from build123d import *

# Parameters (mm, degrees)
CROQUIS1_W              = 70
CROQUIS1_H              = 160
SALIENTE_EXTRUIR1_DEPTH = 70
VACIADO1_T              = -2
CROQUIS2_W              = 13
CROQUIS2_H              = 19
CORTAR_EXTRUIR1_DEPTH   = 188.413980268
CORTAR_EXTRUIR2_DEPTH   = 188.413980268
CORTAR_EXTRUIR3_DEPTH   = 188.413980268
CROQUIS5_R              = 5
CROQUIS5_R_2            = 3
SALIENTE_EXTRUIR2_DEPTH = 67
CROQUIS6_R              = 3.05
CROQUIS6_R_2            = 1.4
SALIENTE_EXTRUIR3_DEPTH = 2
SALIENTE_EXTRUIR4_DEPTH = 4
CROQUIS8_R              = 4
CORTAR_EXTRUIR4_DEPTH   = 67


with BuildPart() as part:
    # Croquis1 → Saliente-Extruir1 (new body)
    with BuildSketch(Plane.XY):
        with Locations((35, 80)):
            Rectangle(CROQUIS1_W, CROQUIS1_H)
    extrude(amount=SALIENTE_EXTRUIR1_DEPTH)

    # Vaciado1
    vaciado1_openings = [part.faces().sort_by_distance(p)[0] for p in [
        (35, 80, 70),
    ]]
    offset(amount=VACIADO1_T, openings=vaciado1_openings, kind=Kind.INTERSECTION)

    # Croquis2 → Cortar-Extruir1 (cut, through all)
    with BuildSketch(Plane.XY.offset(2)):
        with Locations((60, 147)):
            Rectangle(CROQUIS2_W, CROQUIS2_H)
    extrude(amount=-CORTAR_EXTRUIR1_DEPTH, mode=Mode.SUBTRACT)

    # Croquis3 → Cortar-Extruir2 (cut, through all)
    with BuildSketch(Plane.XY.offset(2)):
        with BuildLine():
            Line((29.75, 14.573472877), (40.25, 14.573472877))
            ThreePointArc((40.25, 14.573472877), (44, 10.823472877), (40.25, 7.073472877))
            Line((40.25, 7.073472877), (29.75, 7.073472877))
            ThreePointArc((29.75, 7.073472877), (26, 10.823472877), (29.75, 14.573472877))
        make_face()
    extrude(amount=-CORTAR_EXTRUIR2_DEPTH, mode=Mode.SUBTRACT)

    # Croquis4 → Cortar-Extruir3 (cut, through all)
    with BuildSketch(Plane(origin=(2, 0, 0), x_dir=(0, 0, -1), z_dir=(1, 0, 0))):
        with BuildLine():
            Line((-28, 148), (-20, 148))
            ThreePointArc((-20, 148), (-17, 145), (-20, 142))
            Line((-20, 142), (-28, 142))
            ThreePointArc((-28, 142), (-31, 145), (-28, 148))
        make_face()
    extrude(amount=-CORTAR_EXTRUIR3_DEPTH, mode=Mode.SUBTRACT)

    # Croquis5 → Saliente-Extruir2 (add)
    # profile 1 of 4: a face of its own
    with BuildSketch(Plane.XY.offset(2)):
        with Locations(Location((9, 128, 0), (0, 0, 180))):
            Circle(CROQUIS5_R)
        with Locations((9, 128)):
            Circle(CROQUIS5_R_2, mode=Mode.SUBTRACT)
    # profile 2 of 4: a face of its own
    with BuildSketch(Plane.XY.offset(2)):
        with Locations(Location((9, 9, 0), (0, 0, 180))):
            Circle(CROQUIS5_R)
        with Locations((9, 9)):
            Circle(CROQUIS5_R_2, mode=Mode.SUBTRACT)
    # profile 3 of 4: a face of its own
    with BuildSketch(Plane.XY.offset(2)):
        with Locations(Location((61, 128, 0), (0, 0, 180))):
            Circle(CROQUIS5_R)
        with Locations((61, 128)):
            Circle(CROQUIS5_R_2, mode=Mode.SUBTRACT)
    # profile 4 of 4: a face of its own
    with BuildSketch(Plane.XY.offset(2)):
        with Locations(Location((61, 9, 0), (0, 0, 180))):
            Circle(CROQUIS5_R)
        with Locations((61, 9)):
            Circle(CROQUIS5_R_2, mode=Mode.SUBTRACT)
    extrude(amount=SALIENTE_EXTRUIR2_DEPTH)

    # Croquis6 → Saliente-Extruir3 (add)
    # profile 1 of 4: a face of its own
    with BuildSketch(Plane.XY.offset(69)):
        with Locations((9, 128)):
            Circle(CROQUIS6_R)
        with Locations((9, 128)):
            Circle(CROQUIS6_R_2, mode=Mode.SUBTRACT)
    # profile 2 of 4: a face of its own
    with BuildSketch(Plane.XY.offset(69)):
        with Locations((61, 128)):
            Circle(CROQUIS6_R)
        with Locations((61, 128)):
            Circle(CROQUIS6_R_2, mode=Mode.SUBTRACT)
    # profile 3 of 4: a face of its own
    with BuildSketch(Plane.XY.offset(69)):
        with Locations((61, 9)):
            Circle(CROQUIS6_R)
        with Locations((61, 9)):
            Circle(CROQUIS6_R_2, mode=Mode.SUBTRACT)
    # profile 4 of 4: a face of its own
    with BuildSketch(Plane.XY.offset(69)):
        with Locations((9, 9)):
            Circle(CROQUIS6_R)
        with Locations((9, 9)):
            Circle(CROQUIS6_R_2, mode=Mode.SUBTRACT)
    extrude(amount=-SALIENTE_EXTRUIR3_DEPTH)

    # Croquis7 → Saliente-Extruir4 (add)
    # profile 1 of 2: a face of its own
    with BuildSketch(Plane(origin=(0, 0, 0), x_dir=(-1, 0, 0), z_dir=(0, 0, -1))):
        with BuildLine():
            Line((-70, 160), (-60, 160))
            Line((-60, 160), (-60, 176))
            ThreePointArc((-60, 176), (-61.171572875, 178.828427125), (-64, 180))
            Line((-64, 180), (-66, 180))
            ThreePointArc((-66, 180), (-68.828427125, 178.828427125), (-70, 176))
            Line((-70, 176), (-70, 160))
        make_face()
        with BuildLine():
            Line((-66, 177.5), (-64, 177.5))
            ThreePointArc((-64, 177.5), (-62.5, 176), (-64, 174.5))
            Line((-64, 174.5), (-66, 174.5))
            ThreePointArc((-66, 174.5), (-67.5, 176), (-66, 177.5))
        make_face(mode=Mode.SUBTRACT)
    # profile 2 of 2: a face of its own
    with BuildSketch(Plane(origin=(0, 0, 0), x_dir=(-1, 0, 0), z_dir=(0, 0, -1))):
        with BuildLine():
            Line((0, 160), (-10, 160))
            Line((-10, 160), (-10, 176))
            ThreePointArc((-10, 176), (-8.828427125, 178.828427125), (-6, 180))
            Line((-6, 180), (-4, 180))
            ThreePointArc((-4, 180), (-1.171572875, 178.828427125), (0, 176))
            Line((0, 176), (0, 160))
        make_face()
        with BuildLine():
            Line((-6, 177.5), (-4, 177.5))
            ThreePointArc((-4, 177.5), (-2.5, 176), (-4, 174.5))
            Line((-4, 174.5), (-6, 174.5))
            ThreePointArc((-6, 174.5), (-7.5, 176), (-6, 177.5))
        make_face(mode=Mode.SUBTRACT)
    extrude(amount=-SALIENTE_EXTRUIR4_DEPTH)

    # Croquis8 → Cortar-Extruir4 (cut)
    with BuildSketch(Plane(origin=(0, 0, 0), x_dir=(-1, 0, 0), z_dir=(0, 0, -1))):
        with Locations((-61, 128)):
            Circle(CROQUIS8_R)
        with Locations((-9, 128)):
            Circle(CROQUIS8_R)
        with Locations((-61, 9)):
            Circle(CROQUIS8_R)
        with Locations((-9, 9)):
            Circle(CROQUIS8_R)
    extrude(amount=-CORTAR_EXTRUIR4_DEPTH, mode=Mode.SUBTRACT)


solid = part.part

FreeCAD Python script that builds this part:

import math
import FreeCAD as App
import Part
import Sketcher
from FreeCAD import Vector


def faces_at(feature, points):
    """Names of the faces that lie closest to the given points."""
    faces = feature.Shape.Faces
    near = lambda p: min(range(len(faces)), key=lambda i: faces[i].distToShape(Part.Vertex(*p))[0])
    return sorted({f"Face{near(p) + 1}" for p in points})


def add_polygon(sketch, points):
    """Adds a closed chain of lines whose ends are joined by coincident constraints."""
    first, n = sketch.GeometryCount, len(points)
    for a, b in zip(points, points[1:] + points[:1]):
        sketch.addGeometry(Part.LineSegment(App.Vector(*a, 0), App.Vector(*b, 0)), False)
    for i in range(n):
        sketch.addConstraint(Sketcher.Constraint("Coincident", first + i, 2, first + (i + 1) % n, 1))

doc = App.newDocument("Part")
body = doc.addObject("PartDesign::Body", "Body")

# Sketch on XY plane
sketch1 = body.newObject("Sketcher::SketchObject", "Sketch")
sketch1.AttachmentSupport = (doc.getObject("XY_Plane"), [""])
sketch1.MapMode = "FlatFace"
add_polygon(sketch1, [(0, 160), (0, 0), (70, 0), (70, 160)])  # lines 0-3
sketch1.addConstraint(Sketcher.Constraint("Vertical", 0))
sketch1.addConstraint(Sketcher.Constraint("Horizontal", 1))
sketch1.addConstraint(Sketcher.Constraint("Vertical", 2))
sketch1.addConstraint(Sketcher.Constraint("Horizontal", 3))
sketch1.addConstraint(Sketcher.Constraint("Coincident", 0, 2, -1, 1))
sketch1.addConstraint(Sketcher.Constraint("DistanceX", 1, 1, 1, 2, 70.0))
sketch1.addConstraint(Sketcher.Constraint("DistanceY", 0, 2, 0, 1, 160.0))
pad1 = body.newObject("PartDesign::Pad", "Pad")
pad1.Profile = sketch1
pad1.Length = 70
doc.recompute()

thickness = body.newObject("PartDesign::Thickness", "Thickness")
thickness.Base = (pad1, faces_at(pad1, [(35, 80, 70)]))
thickness.Value = 2
thickness.Reversed = True
thickness.Join = "Intersection"

# Sketch on XY plane
sketch2 = body.newObject("Sketcher::SketchObject", "Sketch001")
sketch2.AttachmentSupport = (doc.getObject("XY_Plane"), [""])
sketch2.MapMode = "FlatFace"
sketch2.AttachmentOffset = App.Placement(Vector(0, 0, 2), App.Rotation())
add_polygon(sketch2, [(54, 156), (54, 138), (66, 138), (66, 156)])  # lines 0-3
sketch2.addConstraint(Sketcher.Constraint("Vertical", 0))
sketch2.addConstraint(Sketcher.Constraint("Horizontal", 1))
sketch2.addConstraint(Sketcher.Constraint("Vertical", 2))
sketch2.addConstraint(Sketcher.Constraint("Horizontal", 3))
sketch2.addConstraint(Sketcher.Constraint("DistanceX", 1, 1, 1, 2, 13.0))
sketch2.addConstraint(Sketcher.Constraint("DistanceY", 0, 2, 0, 1, 19.0))
sketch2.addConstraint(Sketcher.Constraint("DistanceX", -1, 1, 0, 2, 53.5))
sketch2.addConstraint(Sketcher.Constraint("DistanceY", -1, 1, 0, 2, 137.5))
pocket1 = body.newObject("PartDesign::Pocket", "Pocket")
pocket1.Profile = sketch2
pocket1.Type = "ThroughAll"

# Sketch on XY plane
sketch3 = body.newObject("Sketcher::SketchObject", "Sketch002")
sketch3.AttachmentSupport = (doc.getObject("XY_Plane"), [""])
sketch3.MapMode = "FlatFace"
sketch3.AttachmentOffset = App.Placement(Vector(0, 0, 2), App.Rotation())
sketch3.addGeometry(Part.LineSegment(Vector(40.2, 14.6, 0), Vector(29.8, 14.6, 0)), False)
sketch3.addGeometry(Part.ArcOfCircle(Part.Circle(Vector(29.8, 10.8, 0), Vector(0, 0, 1), 3.8), math.radians(90), math.radians(270)), False)
sketch3.addGeometry(Part.LineSegment(Vector(29.8, 7.1, 0), Vector(40.2, 7.1, 0)), False)
sketch3.addGeometry(Part.ArcOfCircle(Part.Circle(Vector(40.2, 10.8, 0), Vector(0, 0, 1), 3.8), math.radians(-90), math.radians(90)), False)
sketch3.addConstraint(Sketcher.Constraint("Tangent", 0, 2, 1, 1))
sketch3.addConstraint(Sketcher.Constraint("Tangent", 1, 2, 2, 1))
sketch3.addConstraint(Sketcher.Constraint("Tangent", 2, 2, 3, 1))
sketch3.addConstraint(Sketcher.Constraint("Tangent", 3, 2, 0, 1))
sketch3.addConstraint(Sketcher.Constraint("Horizontal", 0))
sketch3.addConstraint(Sketcher.Constraint("Horizontal", 2))
sketch3.addConstraint(Sketcher.Constraint("Radius", 1, 3.75))
sketch3.addConstraint(Sketcher.Constraint("DistanceX", 0, 2, 0, 1, 10.5))
sketch3.addConstraint(Sketcher.Constraint("DistanceX", -1, 1, 1, 3, 29.75))
sketch3.addConstraint(Sketcher.Constraint("DistanceY", -1, 1, 1, 3, 10.823473))
pocket2 = body.newObject("PartDesign::Pocket", "Pocket001")
pocket2.Profile = sketch3
pocket2.Type = "ThroughAll"

# Sketch on YZ plane
sketch4 = body.newObject("Sketcher::SketchObject", "Sketch003")
sketch4.AttachmentSupport = (doc.getObject("YZ_Plane"), [""])
sketch4.MapMode = "FlatFace"
sketch4.AttachmentOffset = App.Placement(Vector(0, 0, 2), App.Rotation())
sketch4.addGeometry(Part.LineSegment(Vector(148, 20, 0), Vector(148, 28, 0)), False)
sketch4.addGeometry(Part.ArcOfCircle(Part.Circle(Vector(145, 28, 0), Vector(0, 0, 1), 3), math.radians(0), math.radians(180)), False)
sketch4.addGeometry(Part.LineSegment(Vector(142, 28, 0), Vector(142, 20, 0)), False)
sketch4.addGeometry(Part.ArcOfCircle(Part.Circle(Vector(145, 20, 0), Vector(0, 0, 1), 3), math.radians(180), math.radians(360)), False)
sketch4.addConstraint(Sketcher.Constraint("Tangent", 0, 2, 1, 1))
sketch4.addConstraint(Sketcher.Constraint("Tangent", 1, 2, 2, 1))
sketch4.addConstraint(Sketcher.Constraint("Tangent", 2, 2, 3, 1))
sketch4.addConstraint(Sketcher.Constraint("Tangent", 3, 2, 0, 1))
sketch4.addConstraint(Sketcher.Constraint("Vertical", 0))
sketch4.addConstraint(Sketcher.Constraint("Vertical", 2))
sketch4.addConstraint(Sketcher.Constraint("Radius", 1, 3.0))
sketch4.addConstraint(Sketcher.Constraint("DistanceY", 0, 1, 0, 2, 8.0))
sketch4.addConstraint(Sketcher.Constraint("DistanceX", -1, 1, 1, 3, 145.0))
sketch4.addConstraint(Sketcher.Constraint("DistanceY", -1, 1, 1, 3, 28.0))
pocket3 = body.newObject("PartDesign::Pocket", "Pocket002")
pocket3.Profile = sketch4
pocket3.Type = "ThroughAll"

# Sketch on XY plane
sketch5 = body.newObject("Sketcher::SketchObject", "Sketch004")
sketch5.AttachmentSupport = (doc.getObject("XY_Plane"), [""])
sketch5.MapMode = "FlatFace"
sketch5.AttachmentOffset = App.Placement(Vector(0, 0, 2), App.Rotation())
sketch5.addGeometry(Part.Circle(Vector(9, 128, 0), Vector(0, 0, 1), 5), False)
sketch5.addGeometry(Part.Circle(Vector(9, 128, 0), Vector(0, 0, 1), 3), False)
sketch5.addGeometry(Part.Circle(Vector(9, 9, 0), Vector(0, 0, 1), 5), False)
sketch5.addGeometry(Part.Circle(Vector(9, 9, 0), Vector(0, 0, 1), 3), False)
sketch5.addGeometry(Part.Circle(Vector(61, 128, 0), Vector(0, 0, 1), 5), False)
sketch5.addGeometry(Part.Circle(Vector(61, 128, 0), Vector(0, 0, 1), 3), False)
sketch5.addGeometry(Part.Circle(Vector(61, 9, 0), Vector(0, 0, 1), 5), False)
sketch5.addGeometry(Part.Circle(Vector(61, 9, 0), Vector(0, 0, 1), 3), False)
sketch5.addConstraint(Sketcher.Constraint("Coincident", 1, 3, 0, 3))
sketch5.addConstraint(Sketcher.Constraint("Coincident", 3, 3, 2, 3))
sketch5.addConstraint(Sketcher.Constraint("Coincident", 5, 3, 4, 3))
sketch5.addConstraint(Sketcher.Constraint("Coincident", 7, 3, 6, 3))
sketch5.addConstraint(Sketcher.Constraint("Equal", 0, 2))
sketch5.addConstraint(Sketcher.Constraint("Equal", 1, 3))
sketch5.addConstraint(Sketcher.Constraint("Equal", 2, 4))
sketch5.addConstraint(Sketcher.Constraint("Equal", 3, 5))
sketch5.addConstraint(Sketcher.Constraint("Equal", 4, 6))
sketch5.addConstraint(Sketcher.Constraint("Equal", 5, 7))
sketch5.addConstraint(Sketcher.Constraint("Horizontal", 1, 3, 4, 3))
sketch5.addConstraint(Sketcher.Constraint("Horizontal", 3, 3, 6, 3))
sketch5.addConstraint(Sketcher.Constraint("Vertical", 1, 3, 2, 3))
sketch5.addConstraint(Sketcher.Constraint("Vertical", 5, 3, 6, 3))
sketch5.addConstraint(Sketcher.Constraint("Diameter", 0, 10.0))
sketch5.addConstraint(Sketcher.Constraint("Diameter", 1, 6.0))
sketch5.addConstraint(Sketcher.Constraint("DistanceX", -1, 1, 0, 3, 9.0))
sketch5.addConstraint(Sketcher.Constraint("DistanceY", -1, 1, 0, 3, 128.0))
sketch5.addConstraint(Sketcher.Constraint("DistanceY", -1, 1, 2, 3, 9.0))
sketch5.addConstraint(Sketcher.Constraint("DistanceX", -1, 1, 4, 3, 61.0))
pad2 = body.newObject("PartDesign::Pad", "Pad001")
pad2.Profile = sketch5
pad2.Length = 67

# Sketch on XY plane
sketch6 = body.newObject("Sketcher::SketchObject", "Sketch005")
sketch6.AttachmentSupport = (doc.getObject("XY_Plane"), [""])
sketch6.MapMode = "FlatFace"
sketch6.AttachmentOffset = App.Placement(Vector(0, 0, 69), App.Rotation())
sketch6.addGeometry(Part.Circle(Vector(9, 128, 0), Vector(0, 0, 1), 3), False)
sketch6.addGeometry(Part.Circle(Vector(9, 128, 0), Vector(0, 0, 1), 1.4), False)
sketch6.addGeometry(Part.Circle(Vector(61, 128, 0), Vector(0, 0, 1), 3), False)
sketch6.addGeometry(Part.Circle(Vector(61, 128, 0), Vector(0, 0, 1), 1.4), False)
sketch6.addGeometry(Part.Circle(Vector(61, 9, 0), Vector(0, 0, 1), 3), False)
sketch6.addGeometry(Part.Circle(Vector(61, 9, 0), Vector(0, 0, 1), 1.4), False)
sketch6.addGeometry(Part.Circle(Vector(9, 9, 0), Vector(0, 0, 1), 3), False)
sketch6.addGeometry(Part.Circle(Vector(9, 9, 0), Vector(0, 0, 1), 1.4), False)
sketch6.addConstraint(Sketcher.Constraint("Coincident", 1, 3, 0, 3))
sketch6.addConstraint(Sketcher.Constraint("Coincident", 3, 3, 2, 3))
sketch6.addConstraint(Sketcher.Constraint("Coincident", 5, 3, 4, 3))
sketch6.addConstraint(Sketcher.Constraint("Coincident", 7, 3, 6, 3))
sketch6.addConstraint(Sketcher.Constraint("Equal", 0, 2))
sketch6.addConstraint(Sketcher.Constraint("Equal", 1, 3))
sketch6.addConstraint(Sketcher.Constraint("Equal", 2, 4))
sketch6.addConstraint(Sketcher.Constraint("Equal", 3, 5))
sketch6.addConstraint(Sketcher.Constraint("Equal", 4, 6))
sketch6.addConstraint(Sketcher.Constraint("Equal", 5, 7))
sketch6.addConstraint(Sketcher.Constraint("Horizontal", 1, 3, 2, 3))
sketch6.addConstraint(Sketcher.Constraint("Horizontal", 5, 3, 6, 3))
sketch6.addConstraint(Sketcher.Constraint("Vertical", 3, 3, 4, 3))
sketch6.addConstraint(Sketcher.Constraint("Vertical", 1, 3, 6, 3))
sketch6.addConstraint(Sketcher.Constraint("Diameter", 0, 6.1))
sketch6.addConstraint(Sketcher.Constraint("Diameter", 1, 2.8))
sketch6.addConstraint(Sketcher.Constraint("DistanceX", -1, 1, 0, 3, 9.0))
sketch6.addConstraint(Sketcher.Constraint("DistanceY", -1, 1, 0, 3, 128.0))
sketch6.addConstraint(Sketcher.Constraint("DistanceX", -1, 1, 2, 3, 61.0))
sketch6.addConstraint(Sketcher.Constraint("DistanceY", -1, 1, 4, 3, 9.0))
pad3 = body.newObject("PartDesign::Pad", "Pad002")
pad3.Profile = sketch6
pad3.Length = 2
pad3.Reversed = True

# Sketch on XY plane
sketch7 = body.newObject("Sketcher::SketchObject", "Sketch006")
sketch7.AttachmentSupport = (doc.getObject("XY_Plane"), [""])
sketch7.MapMode = "FlatFace"
sketch7.addGeometry(Part.LineSegment(Vector(70, 160, 0), Vector(60, 160, 0)), False)
sketch7.addGeometry(Part.LineSegment(Vector(60, 160, 0), Vector(60, 176, 0)), False)
sketch7.addGeometry(Part.ArcOfCircle(Part.Circle(Vector(64, 176, 0), Vector(0, 0, 1), 4), math.radians(90), math.radians(180)), False)
sketch7.addGeometry(Part.LineSegment(Vector(64, 180, 0), Vector(66, 180, 0)), False)
sketch7.addGeometry(Part.ArcOfCircle(Part.Circle(Vector(66, 176, 0), Vector(0, 0, 1), 4), math.radians(0), math.radians(90)), False)
sketch7.addGeometry(Part.LineSegment(Vector(70, 176, 0), Vector(70, 160, 0)), False)
sketch7.addGeometry(Part.ArcOfCircle(Part.Circle(Vector(66, 176, 0), Vector(0, 0, 1), 1.5), math.radians(-90), math.radians(90)), False)
sketch7.addGeometry(Part.LineSegment(Vector(66, 177.5, 0), Vector(64, 177.5, 0)), False)
sketch7.addGeometry(Part.ArcOfCircle(Part.Circle(Vector(64, 176, 0), Vector(0, 0, 1), 1.5), math.radians(90), math.radians(270)), False)
sketch7.addGeometry(Part.LineSegment(Vector(64, 174.5, 0), Vector(66, 174.5, 0)), False)
sketch7.addGeometry(Part.LineSegment(Vector(10, 160, 0), Vector(0, 160, 0)), False)
sketch7.addGeometry(Part.LineSegment(Vector(0, 160, 0), Vector(0, 176, 0)), False)
sketch7.addGeometry(Part.ArcOfCircle(Part.Circle(Vector(4, 176, 0), Vector(0, 0, 1), 4), math.radians(90), math.radians(180)), False)
sketch7.addGeometry(Part.LineSegment(Vector(4, 180, 0), Vector(6, 180, 0)), False)
sketch7.addGeometry(Part.ArcOfCircle(Part.Circle(Vector(6, 176, 0), Vector(0, 0, 1), 4), math.radians(0), math.radians(90)), False)
sketch7.addGeometry(Part.LineSegment(Vector(10, 176, 0), Vector(10, 160, 0)), False)
sketch7.addGeometry(Part.LineSegment(Vector(6, 177.5, 0), Vector(4, 177.5, 0)), False)
sketch7.addGeometry(Part.ArcOfCircle(Part.Circle(Vector(4, 176, 0), Vector(0, 0, 1), 1.5), math.radians(90), math.radians(270)), False)
sketch7.addGeometry(Part.LineSegment(Vector(4, 174.5, 0), Vector(6, 174.5, 0)), False)
sketch7.addGeometry(Part.ArcOfCircle(Part.Circle(Vector(6, 176, 0), Vector(0, 0, 1), 1.5), math.radians(-90), math.radians(90)), False)
sketch7.addConstraint(Sketcher.Constraint("Coincident", 0, 2, 1, 1))
sketch7.addConstraint(Sketcher.Constraint("Tangent", 1, 2, 2, 2))
sketch7.addConstraint(Sketcher.Constraint("Tangent", 2, 1, 3, 1))
sketch7.addConstraint(Sketcher.Constraint("Tangent", 3, 2, 4, 2))
sketch7.addConstraint(Sketcher.Constraint("Tangent", 4, 1, 5, 1))
sketch7.addConstraint(Sketcher.Constraint("Coincident", 5, 2, 0, 1))
sketch7.addConstraint(Sketcher.Constraint("Tangent", 6, 2, 7, 1))
sketch7.addConstraint(Sketcher.Constraint("Tangent", 7, 2, 8, 1))
sketch7.addConstraint(Sketcher.Constraint("Tangent", 8, 2, 9, 1))
sketch7.addConstraint(Sketcher.Constraint("Tangent", 9, 2, 6, 1))
sketch7.addConstraint(Sketcher.Constraint("Coincident", 10, 2, 11, 1))
sketch7.addConstraint(Sketcher.Constraint("Tangent", 11, 2, 12, 2))
sketch7.addConstraint(Sketcher.Constraint("Tangent", 12, 1, 13, 1))
sketch7.addConstraint(Sketcher.Constraint("Tangent", 13, 2, 14, 2))
sketch7.addConstraint(Sketcher.Constraint("Tangent", 14, 1, 15, 1))
sketch7.addConstraint(Sketcher.Constraint("Coincident", 15, 2, 10, 1))
sketch7.addConstraint(Sketcher.Constraint("Tangent", 16, 2, 17, 1))
sketch7.addConstraint(Sketcher.Constraint("Tangent", 17, 2, 18, 1))
sketch7.addConstraint(Sketcher.Constraint("Tangent", 18, 2, 19, 1))
sketch7.addConstraint(Sketcher.Constraint("Tangent", 19, 2, 16, 1))
sketch7.addConstraint(Sketcher.Constraint("Horizontal", 0))
sketch7.addConstraint(Sketcher.Constraint("Vertical", 1))
sketch7.addConstraint(Sketcher.Constraint("Horizontal", 3))
sketch7.addConstraint(Sketcher.Constraint("Vertical", 5))
sketch7.addConstraint(Sketcher.Constraint("Horizontal", 7))
sketch7.addConstraint(Sketcher.Constraint("Horizontal", 9))
sketch7.addConstraint(Sketcher.Constraint("Horizontal", 10))
sketch7.addConstraint(Sketcher.Constraint("Vertical", 11))
sketch7.addConstraint(Sketcher.Constraint("Horizontal", 13))
sketch7.addConstraint(Sketcher.Constraint("Vertical", 15))
sketch7.addConstraint(Sketcher.Constraint("Horizontal", 16))
sketch7.addConstraint(Sketcher.Constraint("Horizontal", 18))
sketch7.addConstraint(Sketcher.Constraint("Coincident", 6, 3, 4, 3))
sketch7.addConstraint(Sketcher.Constraint("Coincident", 8, 3, 2, 3))
sketch7.addConstraint(Sketcher.Constraint("Coincident", 17, 3, 12, 3))
sketch7.addConstraint(Sketcher.Constraint("Coincident", 19, 3, 14, 3))
sketch7.addConstraint(Sketcher.Constraint("Equal", 4, 12))
sketch7.addConstraint(Sketcher.Constraint("Equal", 8, 17))
sketch7.addConstraint(Sketcher.Constraint("PointOnObject", 10, 2, -2))
sketch7.addConstraint(Sketcher.Constraint("Horizontal", 8, 3, 12, 3))
sketch7.addConstraint(Sketcher.Constraint("Horizontal", 5, 2, 10, 2))
sketch7.addConstraint(Sketcher.Constraint("Equal", 0, 10))
sketch7.addConstraint(Sketcher.Constraint("Radius", 2, 4.0))
sketch7.addConstraint(Sketcher.Constraint("Radius", 6, 1.5))
sketch7.addConstraint(Sketcher.Constraint("DistanceX", 0, 2, 0, 1, 10.0))
sketch7.addConstraint(Sketcher.Constraint("DistanceY", 1, 1, 1, 2, 16.0))
sketch7.addConstraint(Sketcher.Constraint("DistanceX", -1, 1, 2, 3, 64.0))
sketch7.addConstraint(Sketcher.Constraint("DistanceY", -1, 1, 2, 3, 176.0))
pad4 = body.newObject("PartDesign::Pad", "Pad003")
pad4.Profile = sketch7
pad4.Length = 4

# Sketch on XY plane
sketch8 = body.newObject("Sketcher::SketchObject", "Sketch007")
sketch8.AttachmentSupport = (doc.getObject("XY_Plane"), [""])
sketch8.MapMode = "FlatFace"
sketch8.addGeometry(Part.Circle(Vector(61, 128, 0), Vector(0, 0, 1), 4), False)
sketch8.addGeometry(Part.Circle(Vector(9, 128, 0), Vector(0, 0, 1), 4), False)
sketch8.addGeometry(Part.Circle(Vector(61, 9, 0), Vector(0, 0, 1), 4), False)
sketch8.addGeometry(Part.Circle(Vector(9, 9, 0), Vector(0, 0, 1), 4), False)
sketch8.addConstraint(Sketcher.Constraint("Equal", 0, 1))
sketch8.addConstraint(Sketcher.Constraint("Equal", 1, 2))
sketch8.addConstraint(Sketcher.Constraint("Equal", 2, 3))
sketch8.addConstraint(Sketcher.Constraint("Horizontal", 0, 3, 1, 3))
sketch8.addConstraint(Sketcher.Constraint("Horizontal", 2, 3, 3, 3))
sketch8.addConstraint(Sketcher.Constraint("Vertical", 0, 3, 2, 3))
sketch8.addConstraint(Sketcher.Constraint("Vertical", 1, 3, 3, 3))
sketch8.addConstraint(Sketcher.Constraint("Diameter", 0, 8.0))
sketch8.addConstraint(Sketcher.Constraint("DistanceX", -1, 1, 0, 3, 61.0))
sketch8.addConstraint(Sketcher.Constraint("DistanceY", -1, 1, 0, 3, 128.0))
sketch8.addConstraint(Sketcher.Constraint("DistanceX", -1, 1, 1, 3, 9.0))
sketch8.addConstraint(Sketcher.Constraint("DistanceY", -1, 1, 2, 3, 9.0))
pocket4 = body.newObject("PartDesign::Pocket", "Pocket003")
pocket4.Profile = sketch8
pocket4.Length = 67
pocket4.Reversed = True

doc.recompute()
